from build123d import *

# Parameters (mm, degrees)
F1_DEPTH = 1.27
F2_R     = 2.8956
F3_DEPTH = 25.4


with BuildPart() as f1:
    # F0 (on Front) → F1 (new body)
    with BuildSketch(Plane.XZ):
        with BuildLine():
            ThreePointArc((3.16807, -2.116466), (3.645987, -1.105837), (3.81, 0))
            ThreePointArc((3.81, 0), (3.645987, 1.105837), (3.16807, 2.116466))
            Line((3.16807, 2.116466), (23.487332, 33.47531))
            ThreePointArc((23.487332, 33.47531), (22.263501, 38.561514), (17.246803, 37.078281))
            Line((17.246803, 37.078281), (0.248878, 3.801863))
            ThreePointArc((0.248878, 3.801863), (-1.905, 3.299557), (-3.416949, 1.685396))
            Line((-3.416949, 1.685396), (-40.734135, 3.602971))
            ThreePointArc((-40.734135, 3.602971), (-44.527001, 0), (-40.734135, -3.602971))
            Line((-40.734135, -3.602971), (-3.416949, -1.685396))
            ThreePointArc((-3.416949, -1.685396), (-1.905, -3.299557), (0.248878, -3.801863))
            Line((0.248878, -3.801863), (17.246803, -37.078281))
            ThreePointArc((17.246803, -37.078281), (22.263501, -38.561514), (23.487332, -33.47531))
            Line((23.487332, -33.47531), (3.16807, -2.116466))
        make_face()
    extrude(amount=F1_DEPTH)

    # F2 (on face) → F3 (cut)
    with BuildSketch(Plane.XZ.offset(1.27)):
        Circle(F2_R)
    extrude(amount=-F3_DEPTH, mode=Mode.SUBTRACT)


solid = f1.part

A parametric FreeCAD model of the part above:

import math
import FreeCAD as App
import Part
import Sketcher

V = App.Vector
Q = App.Units.Quantity

doc = App.newDocument("Part")
params = doc.addObject("Spreadsheet::Sheet", "Params")
for row, (alias, value) in enumerate([
    ("sketch1_radius", "0.1500001 in"),
    ("sketch1_radius2", "0.15 in"),
    ("pad1_length", "0.05 in"),
    ("sketch2_diameter", "0.228 in"),
    ("pocket1_length", "1 in"),
], start=1):
    params.set(f"A{row}", alias)
    params.set(f"B{row}", "=" + value)
    params.setAlias(f"B{row}", alias)

body = doc.addObject("PartDesign::Body", "Body")

# Sketch on XZ plane
sketch1 = body.newObject("Sketcher::SketchObject", "Sketch")
sketch1.AttachmentSupport = (doc.getObject("XZ_Plane"), [""])
sketch1.MapMode = "FlatFace"
sketch1.addGeometry([
    Part.ArcOfCircle(Part.Circle(V(0, 0, 0), V(0, 0, 1), 3.8), math.radians(-34), math.radians(0)),  # 0
    Part.ArcOfCircle(Part.Circle(V(0, 0, 0), V(0, 0, 1), 3.8), math.radians(0), math.radians(34)),  # 1
    Part.LineSegment(V(3.2, 2.1, 0), V(23.5, 33.5, 0)),  # 2
    Part.ArcOfCircle(Part.Circle(V(20.5, 35.4, 0), V(0, 0, 1), 3.6), math.radians(-33), math.radians(153)),  # 3
    Part.LineSegment(V(17.2, 37.1, 0), V(0.2, 3.8, 0)),  # 4
    Part.ArcOfCircle(Part.Circle(V(0, 0, 0), V(0, 0, 1), 3.8), math.radians(86), math.radians(154)),  # 5
    Part.LineSegment(V(-3.4, 1.7, 0), V(-40.7, 3.6, 0)),  # 6
    Part.ArcOfCircle(Part.Circle(V(-40.9, 0, 0), V(0, 0, 1), 3.6), math.radians(87), math.radians(273)),  # 7
    Part.LineSegment(V(-40.7, -3.6, 0), V(-3.4, -1.7, 0)),  # 8
    Part.ArcOfCircle(Part.Circle(V(0, 0, 0), V(0, 0, 1), 3.8), math.radians(-154), math.radians(-86)),  # 9
    Part.LineSegment(V(0.2, -3.8, 0), V(17.2, -37.1, 0)),  # 10
    Part.ArcOfCircle(Part.Circle(V(20.5, -35.4, 0), V(0, 0, 1), 3.6), math.radians(-153), math.radians(33)),  # 11
    Part.LineSegment(V(23.5, -33.5, 0), V(3.2, -2.1, 0)),  # 12
], False)
sketch1.addConstraint([
    Sketcher.Constraint("Tangent", 0, 2, 1, 1),
    Sketcher.Constraint("Coincident", 1, 2, 2, 1),
    Sketcher.Constraint("Tangent", 2, 2, 3, 1),
    Sketcher.Constraint("Tangent", 3, 2, 4, 1),
    Sketcher.Constraint("Coincident", 4, 2, 5, 1),
    Sketcher.Constraint("Coincident", 5, 2, 6, 1),
    Sketcher.Constraint("Tangent", 6, 2, 7, 1),
    Sketcher.Constraint("Tangent", 7, 2, 8, 1),
    Sketcher.Constraint("Coincident", 8, 2, 9, 1),
    Sketcher.Constraint("Coincident", 9, 2, 10, 1),
    Sketcher.Constraint("Tangent", 10, 2, 11, 1),
    Sketcher.Constraint("Tangent", 11, 2, 12, 1),
    Sketcher.Constraint("Coincident", 12, 2, 0, 1),
    Sketcher.Constraint("Coincident", 0, 3, -1, 1),
    Sketcher.Constraint("Coincident", 5, 3, -1, 1),
    Sketcher.Constraint("Coincident", 9, 3, -1, 1),
    Sketcher.Constraint("Equal", 0, 1),
    Sketcher.Constraint("Equal", 3, 7),
    Sketcher.Constraint("Equal", 5, 9),
    Sketcher.Constraint("Equal", 7, 11),
    Sketcher.Constraint("Symmetric", 3, 3, 11, 3, -1),
    Sketcher.Constraint("Symmetric", 6, 2, 7, 2, -1),
    Sketcher.Constraint("PointOnObject", 0, 2, -1),
    Sketcher.Constraint("Vertical", 4, 2, 9, 2),
    Sketcher.Constraint("Vertical", 2, 2, 11, 2),
    Sketcher.Constraint("Equal", 2, 4),
    Sketcher.Constraint("Equal", 4, 6),
    Sketcher.Constraint("Radius", 0, Q("0.1500001 in")),
    Sketcher.Constraint("Radius", 5, Q("0.15 in")),
    Sketcher.Constraint("Radius", 3, 3.607725),
    Sketcher.Constraint("DistanceY", 1, 2, 2, 2, Q("1.2346002 in")),
    Sketcher.Constraint("DistanceY", 1, 3, 5, 2, 1.685398),
    Sketcher.Constraint("Distance", 4, 37.366421),
    Sketcher.Constraint("DistanceX", -1, 1, 3, 3, 20.459638),
])
sketch1.setExpression("Constraints[27]", "Params.sketch1_radius")
sketch1.setExpression("Constraints[28]", "Params.sketch1_radius2")
pad1 = body.newObject("PartDesign::Pad", "Pad")
pad1.Profile = sketch1
pad1.setExpression("Length", "Params.pad1_length")

# Sketch on XZ plane
sketch2 = body.newObject("Sketcher::SketchObject", "Sketch001")
sketch2.AttachmentSupport = (doc.getObject("XZ_Plane"), [""])
sketch2.MapMode = "FlatFace"
sketch2.AttachmentOffset = App.Placement(V(0, 0, 0.05 * 25.4), App.Rotation())
sketch2.addGeometry(Part.Circle(V(0, 0, 0), V(0, 0, 1), 2.9), False)
sketch2.addConstraint([
    Sketcher.Constraint("Coincident", 0, 3, -1, 1),
    Sketcher.Constraint("Diameter", 0, Q("0.228 in")),
])
sketch2.setExpression("Constraints[1]", "Params.sketch2_diameter")
pocket1 = body.newObject("PartDesign::Pocket", "Pocket")
pocket1.Profile = sketch2
pocket1.setExpression("Length", "Params.pocket1_length")

doc.recompute()
